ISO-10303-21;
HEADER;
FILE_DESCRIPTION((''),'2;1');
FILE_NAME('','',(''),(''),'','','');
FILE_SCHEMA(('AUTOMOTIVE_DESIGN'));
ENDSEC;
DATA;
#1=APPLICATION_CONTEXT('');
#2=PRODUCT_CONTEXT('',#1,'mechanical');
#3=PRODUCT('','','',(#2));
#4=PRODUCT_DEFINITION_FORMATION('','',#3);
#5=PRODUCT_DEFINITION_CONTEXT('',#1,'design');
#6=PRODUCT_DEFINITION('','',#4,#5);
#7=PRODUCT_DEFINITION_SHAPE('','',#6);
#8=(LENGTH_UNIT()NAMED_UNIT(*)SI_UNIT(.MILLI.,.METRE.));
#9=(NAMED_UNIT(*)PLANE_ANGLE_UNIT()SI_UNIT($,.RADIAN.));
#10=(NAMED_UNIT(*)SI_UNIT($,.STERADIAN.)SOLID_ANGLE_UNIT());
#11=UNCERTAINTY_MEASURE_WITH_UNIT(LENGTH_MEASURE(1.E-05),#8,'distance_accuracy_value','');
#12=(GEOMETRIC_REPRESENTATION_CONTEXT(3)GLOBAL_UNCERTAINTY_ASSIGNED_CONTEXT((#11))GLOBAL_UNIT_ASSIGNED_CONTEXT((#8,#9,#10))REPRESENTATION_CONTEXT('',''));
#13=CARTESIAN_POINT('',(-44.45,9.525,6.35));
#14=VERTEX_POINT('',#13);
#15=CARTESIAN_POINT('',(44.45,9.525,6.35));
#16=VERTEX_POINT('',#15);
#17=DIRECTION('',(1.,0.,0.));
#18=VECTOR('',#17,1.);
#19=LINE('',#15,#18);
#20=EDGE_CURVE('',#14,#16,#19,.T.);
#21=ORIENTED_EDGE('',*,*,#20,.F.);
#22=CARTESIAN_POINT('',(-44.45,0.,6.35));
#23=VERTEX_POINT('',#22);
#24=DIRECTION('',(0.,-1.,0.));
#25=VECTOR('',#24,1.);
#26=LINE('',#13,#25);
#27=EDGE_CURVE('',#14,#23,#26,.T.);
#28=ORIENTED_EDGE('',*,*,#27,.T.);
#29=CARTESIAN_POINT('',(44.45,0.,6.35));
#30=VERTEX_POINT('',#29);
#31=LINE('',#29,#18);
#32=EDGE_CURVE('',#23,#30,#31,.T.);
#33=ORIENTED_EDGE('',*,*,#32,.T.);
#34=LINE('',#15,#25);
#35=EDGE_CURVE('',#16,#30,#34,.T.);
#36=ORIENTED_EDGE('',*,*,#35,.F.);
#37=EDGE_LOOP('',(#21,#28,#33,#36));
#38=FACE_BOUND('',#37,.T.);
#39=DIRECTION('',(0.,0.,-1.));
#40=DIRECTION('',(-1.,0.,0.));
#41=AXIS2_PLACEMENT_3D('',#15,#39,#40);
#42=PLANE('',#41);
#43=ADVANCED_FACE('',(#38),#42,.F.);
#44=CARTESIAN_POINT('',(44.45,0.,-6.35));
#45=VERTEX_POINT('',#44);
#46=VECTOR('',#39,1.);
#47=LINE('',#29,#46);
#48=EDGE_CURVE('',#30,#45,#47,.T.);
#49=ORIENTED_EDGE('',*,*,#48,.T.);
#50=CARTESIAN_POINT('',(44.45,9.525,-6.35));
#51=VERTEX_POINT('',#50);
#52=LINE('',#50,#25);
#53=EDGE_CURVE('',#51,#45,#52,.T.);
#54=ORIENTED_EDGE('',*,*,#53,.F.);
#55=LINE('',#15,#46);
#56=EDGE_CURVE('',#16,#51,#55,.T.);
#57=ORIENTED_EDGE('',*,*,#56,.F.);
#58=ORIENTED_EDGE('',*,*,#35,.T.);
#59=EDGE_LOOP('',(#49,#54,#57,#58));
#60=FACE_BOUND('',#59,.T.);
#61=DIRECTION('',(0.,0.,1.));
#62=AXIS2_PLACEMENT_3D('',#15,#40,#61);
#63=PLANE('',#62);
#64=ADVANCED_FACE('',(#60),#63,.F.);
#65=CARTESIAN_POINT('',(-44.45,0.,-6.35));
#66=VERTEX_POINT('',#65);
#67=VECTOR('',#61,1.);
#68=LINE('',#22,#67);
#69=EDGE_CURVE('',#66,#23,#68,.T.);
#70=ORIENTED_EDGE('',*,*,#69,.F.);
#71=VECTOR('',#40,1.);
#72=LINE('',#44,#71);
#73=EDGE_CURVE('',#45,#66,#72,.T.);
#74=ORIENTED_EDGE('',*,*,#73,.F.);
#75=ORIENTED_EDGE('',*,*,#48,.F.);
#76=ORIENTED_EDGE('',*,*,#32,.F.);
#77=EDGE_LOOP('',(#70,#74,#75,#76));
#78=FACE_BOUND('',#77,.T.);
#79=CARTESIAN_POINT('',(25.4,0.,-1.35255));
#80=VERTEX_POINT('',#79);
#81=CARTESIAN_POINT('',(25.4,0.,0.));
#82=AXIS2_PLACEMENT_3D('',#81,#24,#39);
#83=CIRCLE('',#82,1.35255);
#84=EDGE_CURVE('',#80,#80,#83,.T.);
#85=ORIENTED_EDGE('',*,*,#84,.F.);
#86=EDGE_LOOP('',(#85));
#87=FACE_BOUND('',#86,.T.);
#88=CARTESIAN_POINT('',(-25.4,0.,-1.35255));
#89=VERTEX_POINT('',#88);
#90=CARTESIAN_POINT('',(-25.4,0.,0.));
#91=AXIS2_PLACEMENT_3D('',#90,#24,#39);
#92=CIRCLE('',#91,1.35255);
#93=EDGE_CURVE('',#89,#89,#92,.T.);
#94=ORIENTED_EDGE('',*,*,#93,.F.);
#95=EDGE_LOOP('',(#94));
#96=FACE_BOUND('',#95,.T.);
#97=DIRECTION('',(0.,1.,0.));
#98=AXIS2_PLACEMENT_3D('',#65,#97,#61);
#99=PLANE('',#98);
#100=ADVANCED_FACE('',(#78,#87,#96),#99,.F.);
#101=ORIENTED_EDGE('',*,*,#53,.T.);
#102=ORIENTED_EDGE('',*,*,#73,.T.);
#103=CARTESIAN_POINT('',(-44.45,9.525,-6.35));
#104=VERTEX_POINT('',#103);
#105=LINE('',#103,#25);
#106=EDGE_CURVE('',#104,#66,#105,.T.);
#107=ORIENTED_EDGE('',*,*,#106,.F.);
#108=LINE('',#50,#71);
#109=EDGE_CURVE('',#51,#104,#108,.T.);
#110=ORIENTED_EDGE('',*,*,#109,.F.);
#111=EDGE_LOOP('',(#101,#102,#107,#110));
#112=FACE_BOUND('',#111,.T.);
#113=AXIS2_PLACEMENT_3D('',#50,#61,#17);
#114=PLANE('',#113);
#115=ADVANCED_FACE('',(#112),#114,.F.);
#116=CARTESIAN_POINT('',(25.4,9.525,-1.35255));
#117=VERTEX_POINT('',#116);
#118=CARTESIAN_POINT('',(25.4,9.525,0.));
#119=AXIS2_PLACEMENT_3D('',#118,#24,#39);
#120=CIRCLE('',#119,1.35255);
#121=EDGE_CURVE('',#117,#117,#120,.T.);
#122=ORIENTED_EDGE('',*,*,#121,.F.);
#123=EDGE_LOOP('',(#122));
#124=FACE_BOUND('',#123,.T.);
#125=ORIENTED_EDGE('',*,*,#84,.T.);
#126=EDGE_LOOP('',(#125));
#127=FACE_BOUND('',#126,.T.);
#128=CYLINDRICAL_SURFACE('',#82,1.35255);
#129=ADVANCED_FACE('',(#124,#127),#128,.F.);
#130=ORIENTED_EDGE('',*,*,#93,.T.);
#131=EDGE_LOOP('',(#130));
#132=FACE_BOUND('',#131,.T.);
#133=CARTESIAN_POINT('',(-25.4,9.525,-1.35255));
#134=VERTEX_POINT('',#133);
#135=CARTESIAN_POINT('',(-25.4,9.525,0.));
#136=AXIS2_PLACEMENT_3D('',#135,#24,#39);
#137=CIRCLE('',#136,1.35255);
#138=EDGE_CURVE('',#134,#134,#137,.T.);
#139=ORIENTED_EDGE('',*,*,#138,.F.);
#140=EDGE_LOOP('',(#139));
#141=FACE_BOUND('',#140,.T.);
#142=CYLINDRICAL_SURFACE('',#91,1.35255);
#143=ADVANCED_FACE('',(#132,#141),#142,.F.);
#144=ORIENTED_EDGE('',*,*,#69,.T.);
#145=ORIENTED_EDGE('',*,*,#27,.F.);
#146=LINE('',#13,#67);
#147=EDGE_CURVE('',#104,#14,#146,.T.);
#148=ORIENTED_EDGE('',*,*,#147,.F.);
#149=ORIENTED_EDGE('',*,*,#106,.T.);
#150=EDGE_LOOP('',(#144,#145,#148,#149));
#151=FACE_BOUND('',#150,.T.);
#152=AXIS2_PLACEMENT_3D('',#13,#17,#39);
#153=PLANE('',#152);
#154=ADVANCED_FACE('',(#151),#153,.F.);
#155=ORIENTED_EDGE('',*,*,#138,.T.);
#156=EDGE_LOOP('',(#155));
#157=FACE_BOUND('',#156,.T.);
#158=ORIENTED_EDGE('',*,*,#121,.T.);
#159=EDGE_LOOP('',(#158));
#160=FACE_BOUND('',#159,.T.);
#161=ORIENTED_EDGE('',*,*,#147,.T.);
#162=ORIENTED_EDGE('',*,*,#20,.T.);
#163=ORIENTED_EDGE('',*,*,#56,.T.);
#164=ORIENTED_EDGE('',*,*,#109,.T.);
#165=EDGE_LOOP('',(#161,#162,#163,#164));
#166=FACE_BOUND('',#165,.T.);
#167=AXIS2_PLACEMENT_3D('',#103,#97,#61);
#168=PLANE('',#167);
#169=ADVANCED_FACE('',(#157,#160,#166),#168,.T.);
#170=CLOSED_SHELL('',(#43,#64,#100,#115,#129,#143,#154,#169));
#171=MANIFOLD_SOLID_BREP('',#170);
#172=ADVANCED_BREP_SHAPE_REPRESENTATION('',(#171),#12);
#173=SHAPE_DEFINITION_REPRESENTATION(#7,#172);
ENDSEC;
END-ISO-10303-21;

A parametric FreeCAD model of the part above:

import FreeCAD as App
import Part
import Sketcher
Q = App.Units.Quantity

doc = App.newDocument("Part")
params = doc.addObject("Spreadsheet::Sheet", "Params")
for row, (alias, value) in enumerate([
    ("sketch1_width", "3.5 in"),
    ("sketch1_height", "0.5 in"),
    ("pad1_length", "0.375 in"),
    ("hole_diameter", "0.1065 in"),
], start=1):
    params.set(f"A{row}", alias)
    params.set(f"B{row}", "=" + value)
    params.setAlias(f"B{row}", alias)

body = doc.addObject("PartDesign::Body", "Body")

# Sketch on XZ plane
sketch1 = body.newObject("Sketcher::SketchObject", "Sketch")
sketch1.AttachmentSupport = (doc.getObject("XZ_Plane"), [""])
sketch1.MapMode = "FlatFace"
sketch1.addGeometry([
    Part.LineSegment(App.Vector(-44.45, -6.35, 0), App.Vector(-44.45, 6.35, 0)),
    Part.LineSegment(App.Vector(-44.45, 6.35, 0), App.Vector(44.45, 6.35, 0)),
    Part.LineSegment(App.Vector(44.45, 6.35, 0), App.Vector(44.45, -6.35, 0)),
    Part.LineSegment(App.Vector(44.45, -6.35, 0), App.Vector(-44.45, -6.35, 0)),
], False)
sketch1.addConstraint([
    Sketcher.Constraint("Coincident", 0, 2, 1, 1),
    Sketcher.Constraint("Coincident", 1, 2, 2, 1),
    Sketcher.Constraint("Coincident", 2, 2, 3, 1),
    Sketcher.Constraint("Coincident", 3, 2, 0, 1),
    Sketcher.Constraint("Vertical", 0),
    Sketcher.Constraint("Horizontal", 1),
    Sketcher.Constraint("Vertical", 2),
    Sketcher.Constraint("Horizontal", 3),
    Sketcher.Constraint("Symmetric", 0, 2, 2, 2, -1, 1),
    Sketcher.Constraint("DistanceX", 1, 1, 1, 2, Q("3.5 in")),
    Sketcher.Constraint("DistanceY", 0, 1, 0, 2, Q("0.5 in")),
])
sketch1.setExpression("Constraints[9]", "Params.sketch1_width")
sketch1.setExpression("Constraints[10]", "Params.sketch1_height")
pad1 = body.newObject("PartDesign::Pad", "Pad")
pad1.Profile = sketch1
pad1.setExpression("Length", "Params.pad1_length")
pad1.Reversed = True

# Sketch on XZ plane
sketch2 = body.newObject("Sketcher::SketchObject", "Sketch001")
sketch2.AttachmentSupport = (doc.getObject("XZ_Plane"), [""])
sketch2.MapMode = "FlatFace"
sketch2.addGeometry([
    Part.Circle(App.Vector(25.4, 0, 0), App.Vector(0, 0, 1), 1.35255),
    Part.Circle(App.Vector(-25.4, 0, 0), App.Vector(0, 0, 1), 1.35255),
], False)
sketch2.addConstraint([
    Sketcher.Constraint("Equal", 0, 1),
    Sketcher.Constraint("Symmetric", 0, 3, 1, 3, -1, 1),
    Sketcher.Constraint("PointOnObject", 0, 3, -1),
    Sketcher.Constraint("DistanceX", -1, 1, 0, 3, Q("1 in")),
    Sketcher.Constraint("Diameter", 0, Q("0.1065 in")),
])
doc.recompute()
hole = body.newObject("PartDesign::Hole", "Hole")
hole.Profile = sketch2
hole.ThreadType = "None"
hole.setExpression("Diameter", "Params.hole_diameter")
hole.DepthType = "ThroughAll"

doc.recompute()
